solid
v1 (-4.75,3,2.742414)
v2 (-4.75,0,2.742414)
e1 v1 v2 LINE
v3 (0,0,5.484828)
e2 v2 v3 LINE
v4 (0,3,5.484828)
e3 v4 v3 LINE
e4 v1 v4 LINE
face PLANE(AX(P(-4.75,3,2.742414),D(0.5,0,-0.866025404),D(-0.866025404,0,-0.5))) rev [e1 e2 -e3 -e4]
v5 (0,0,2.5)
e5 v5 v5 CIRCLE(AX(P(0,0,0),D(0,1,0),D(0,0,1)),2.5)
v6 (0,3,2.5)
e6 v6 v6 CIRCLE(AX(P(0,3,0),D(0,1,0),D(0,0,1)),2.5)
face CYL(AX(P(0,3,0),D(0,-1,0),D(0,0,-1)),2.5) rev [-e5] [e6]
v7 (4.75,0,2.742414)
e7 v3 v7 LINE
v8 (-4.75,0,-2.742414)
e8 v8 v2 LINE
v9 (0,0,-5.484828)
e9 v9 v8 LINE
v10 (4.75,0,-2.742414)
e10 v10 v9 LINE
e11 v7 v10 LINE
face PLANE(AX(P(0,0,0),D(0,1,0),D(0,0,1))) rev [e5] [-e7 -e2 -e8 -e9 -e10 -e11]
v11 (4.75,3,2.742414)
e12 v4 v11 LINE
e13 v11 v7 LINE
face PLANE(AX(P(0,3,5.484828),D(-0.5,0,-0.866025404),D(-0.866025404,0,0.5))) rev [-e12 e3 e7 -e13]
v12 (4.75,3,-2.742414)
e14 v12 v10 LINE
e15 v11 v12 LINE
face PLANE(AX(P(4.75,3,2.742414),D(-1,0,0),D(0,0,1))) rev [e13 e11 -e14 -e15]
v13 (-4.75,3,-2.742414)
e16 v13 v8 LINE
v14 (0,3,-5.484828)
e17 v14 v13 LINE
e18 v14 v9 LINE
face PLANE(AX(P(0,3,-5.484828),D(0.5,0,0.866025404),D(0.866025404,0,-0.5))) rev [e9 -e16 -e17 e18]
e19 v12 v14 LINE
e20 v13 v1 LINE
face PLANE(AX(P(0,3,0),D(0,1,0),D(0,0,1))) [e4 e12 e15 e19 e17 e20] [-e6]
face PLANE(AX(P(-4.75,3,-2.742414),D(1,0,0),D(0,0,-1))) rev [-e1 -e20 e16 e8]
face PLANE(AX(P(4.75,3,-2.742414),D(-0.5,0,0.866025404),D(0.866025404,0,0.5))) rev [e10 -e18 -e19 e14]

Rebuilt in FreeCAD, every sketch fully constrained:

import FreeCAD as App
import Part
import Sketcher
from FreeCAD import Vector
Q = App.Units.Quantity

doc = App.newDocument("Part")
body = doc.addObject("PartDesign::Body", "Body")

# Sketch on XZ plane
sketch1 = body.newObject("Sketcher::SketchObject", "Sketch")
sketch1.AttachmentSupport = (doc.getObject("XZ_Plane"), [""])
sketch1.MapMode = "FlatFace"
sketch1.addGeometry([
    Part.LineSegment(Vector(0, -5.484828, 0), Vector(-4.75, -2.742414, 0)),  # 0
    Part.LineSegment(Vector(-4.75, -2.742414, 0), Vector(-4.75, 2.742414, 0)),  # 1
    Part.LineSegment(Vector(-4.75, 2.742414, 0), Vector(0, 5.484828, 0)),  # 2
    Part.LineSegment(Vector(0, 5.484828, 0), Vector(4.75, 2.742414, 0)),  # 3
    Part.LineSegment(Vector(4.75, 2.742414, 0), Vector(4.75, -2.742414, 0)),  # 4
    Part.LineSegment(Vector(4.75, -2.742414, 0), Vector(0, -5.484828, 0)),  # 5
    Part.Circle(Vector(0, 0, 0), Vector(0, 0, 1), 2.5),  # 6
], False)
sketch1.addConstraint([
    Sketcher.Constraint("Coincident", 0, 2, 1, 1),
    Sketcher.Constraint("Coincident", 1, 2, 2, 1),
    Sketcher.Constraint("Coincident", 2, 2, 3, 1),
    Sketcher.Constraint("Coincident", 3, 2, 4, 1),
    Sketcher.Constraint("Coincident", 4, 2, 5, 1),
    Sketcher.Constraint("Coincident", 5, 2, 0, 1),
    Sketcher.Constraint("Vertical", 1),
    Sketcher.Constraint("Vertical", 4),
    Sketcher.Constraint("Coincident", 6, 3, -1, 1),
    Sketcher.Constraint("Symmetric", 0, 2, 3, 2, -1, 1),
    Sketcher.Constraint("Symmetric", 2, 2, 5, 2, -1, 1),
    Sketcher.Constraint("PointOnObject", 2, 2, -2),
    Sketcher.Constraint("Parallel", 2, 5),
    Sketcher.Constraint("Horizontal", 1, 2, 3, 2),
    Sketcher.Constraint("Diameter", 6, 5.0),
    Sketcher.Constraint("Angle", 0, Q("150 deg")),
    Sketcher.Constraint("DistanceX", 1, 2, 3, 2, 9.5),
    Sketcher.Constraint("DistanceY", 1, 1, 1, 2, 5.484828),
])
pad1 = body.newObject("PartDesign::Pad", "Pad")
pad1.Profile = sketch1
pad1.Length = 3
pad1.Reversed = True

doc.recompute()
